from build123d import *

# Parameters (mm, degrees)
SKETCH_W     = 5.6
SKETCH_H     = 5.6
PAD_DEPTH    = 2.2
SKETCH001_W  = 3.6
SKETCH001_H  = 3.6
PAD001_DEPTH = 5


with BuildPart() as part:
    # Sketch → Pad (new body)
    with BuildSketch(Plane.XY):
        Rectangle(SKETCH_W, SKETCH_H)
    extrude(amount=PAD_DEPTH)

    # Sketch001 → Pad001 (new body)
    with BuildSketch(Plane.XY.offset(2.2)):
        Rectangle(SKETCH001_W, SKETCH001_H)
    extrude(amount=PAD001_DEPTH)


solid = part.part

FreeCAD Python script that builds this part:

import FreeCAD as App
import Part
import Sketcher
Q = App.Units.Quantity


def add_polygon(sketch, points):
    """Adds a closed chain of lines whose ends are joined by coincident constraints."""
    first, n = sketch.GeometryCount, len(points)
    for a, b in zip(points, points[1:] + points[:1]):
        sketch.addGeometry(Part.LineSegment(App.Vector(*a, 0), App.Vector(*b, 0)), False)
    for i in range(n):
        sketch.addConstraint(Sketcher.Constraint("Coincident", first + i, 2, first + (i + 1) % n, 1))

doc = App.newDocument("Part")
body = doc.addObject("PartDesign::Body", "Body")

sketch1 = doc.addObject("Sketcher::SketchObject", "Sketch")
body.addObject(sketch1)
sketch1.AttachmentSupport = (doc.XY_Plane, [""])
sketch1.MapMode = "FlatFace"
add_polygon(sketch1, [(-3, 3), (-3, -3), (3, -3), (3, 3)])
sketch1.addConstraint(Sketcher.Constraint("Vertical", 0))
sketch1.addConstraint(Sketcher.Constraint("Horizontal", 1))
sketch1.addConstraint(Sketcher.Constraint("Vertical", 2))
sketch1.addConstraint(Sketcher.Constraint("Horizontal", 3))
sketch1.addConstraint(Sketcher.Constraint("Symmetric", 0, 2, 2, 2, -1, 1))
sketch1.addConstraint(Sketcher.Constraint("Equal", 3, 0))
sketch1.addConstraint(Sketcher.Constraint("DistanceX", 1, 1, 1, 2, Q("5.6 mm")))
pad1 = doc.addObject("PartDesign::Pad", "Pad")
body.addObject(pad1)
pad1.Profile = sketch1
pad1.Length = 2.2

sketch2 = doc.addObject("Sketcher::SketchObject", "Sketch001")
body.addObject(sketch2)
sketch2.AttachmentSupport = (doc.XY_Plane, [""])
sketch2.MapMode = "FlatFace"
sketch2.AttachmentOffset = App.Placement(App.Vector(0, 0, 2.2), App.Rotation())
add_polygon(sketch2, [(-1.8, 1.8), (-1.8, -1.8), (1.8, -1.8), (1.8, 1.8)])
sketch2.addConstraint(Sketcher.Constraint("Vertical", 0))
sketch2.addConstraint(Sketcher.Constraint("Horizontal", 1))
sketch2.addConstraint(Sketcher.Constraint("Vertical", 2))
sketch2.addConstraint(Sketcher.Constraint("Horizontal", 3))
sketch2.addConstraint(Sketcher.Constraint("Symmetric", 0, 2, 2, 2, -1, 1))
sketch2.addConstraint(Sketcher.Constraint("Equal", 3, 0))
sketch2.addConstraint(Sketcher.Constraint("DistanceX", 1, 1, 1, 2, Q("3.6 mm")))
pad2 = doc.addObject("PartDesign::Pad", "Pad001")
body.addObject(pad2)
pad2.Profile = sketch2
pad2.Length = 5

doc.recompute()
